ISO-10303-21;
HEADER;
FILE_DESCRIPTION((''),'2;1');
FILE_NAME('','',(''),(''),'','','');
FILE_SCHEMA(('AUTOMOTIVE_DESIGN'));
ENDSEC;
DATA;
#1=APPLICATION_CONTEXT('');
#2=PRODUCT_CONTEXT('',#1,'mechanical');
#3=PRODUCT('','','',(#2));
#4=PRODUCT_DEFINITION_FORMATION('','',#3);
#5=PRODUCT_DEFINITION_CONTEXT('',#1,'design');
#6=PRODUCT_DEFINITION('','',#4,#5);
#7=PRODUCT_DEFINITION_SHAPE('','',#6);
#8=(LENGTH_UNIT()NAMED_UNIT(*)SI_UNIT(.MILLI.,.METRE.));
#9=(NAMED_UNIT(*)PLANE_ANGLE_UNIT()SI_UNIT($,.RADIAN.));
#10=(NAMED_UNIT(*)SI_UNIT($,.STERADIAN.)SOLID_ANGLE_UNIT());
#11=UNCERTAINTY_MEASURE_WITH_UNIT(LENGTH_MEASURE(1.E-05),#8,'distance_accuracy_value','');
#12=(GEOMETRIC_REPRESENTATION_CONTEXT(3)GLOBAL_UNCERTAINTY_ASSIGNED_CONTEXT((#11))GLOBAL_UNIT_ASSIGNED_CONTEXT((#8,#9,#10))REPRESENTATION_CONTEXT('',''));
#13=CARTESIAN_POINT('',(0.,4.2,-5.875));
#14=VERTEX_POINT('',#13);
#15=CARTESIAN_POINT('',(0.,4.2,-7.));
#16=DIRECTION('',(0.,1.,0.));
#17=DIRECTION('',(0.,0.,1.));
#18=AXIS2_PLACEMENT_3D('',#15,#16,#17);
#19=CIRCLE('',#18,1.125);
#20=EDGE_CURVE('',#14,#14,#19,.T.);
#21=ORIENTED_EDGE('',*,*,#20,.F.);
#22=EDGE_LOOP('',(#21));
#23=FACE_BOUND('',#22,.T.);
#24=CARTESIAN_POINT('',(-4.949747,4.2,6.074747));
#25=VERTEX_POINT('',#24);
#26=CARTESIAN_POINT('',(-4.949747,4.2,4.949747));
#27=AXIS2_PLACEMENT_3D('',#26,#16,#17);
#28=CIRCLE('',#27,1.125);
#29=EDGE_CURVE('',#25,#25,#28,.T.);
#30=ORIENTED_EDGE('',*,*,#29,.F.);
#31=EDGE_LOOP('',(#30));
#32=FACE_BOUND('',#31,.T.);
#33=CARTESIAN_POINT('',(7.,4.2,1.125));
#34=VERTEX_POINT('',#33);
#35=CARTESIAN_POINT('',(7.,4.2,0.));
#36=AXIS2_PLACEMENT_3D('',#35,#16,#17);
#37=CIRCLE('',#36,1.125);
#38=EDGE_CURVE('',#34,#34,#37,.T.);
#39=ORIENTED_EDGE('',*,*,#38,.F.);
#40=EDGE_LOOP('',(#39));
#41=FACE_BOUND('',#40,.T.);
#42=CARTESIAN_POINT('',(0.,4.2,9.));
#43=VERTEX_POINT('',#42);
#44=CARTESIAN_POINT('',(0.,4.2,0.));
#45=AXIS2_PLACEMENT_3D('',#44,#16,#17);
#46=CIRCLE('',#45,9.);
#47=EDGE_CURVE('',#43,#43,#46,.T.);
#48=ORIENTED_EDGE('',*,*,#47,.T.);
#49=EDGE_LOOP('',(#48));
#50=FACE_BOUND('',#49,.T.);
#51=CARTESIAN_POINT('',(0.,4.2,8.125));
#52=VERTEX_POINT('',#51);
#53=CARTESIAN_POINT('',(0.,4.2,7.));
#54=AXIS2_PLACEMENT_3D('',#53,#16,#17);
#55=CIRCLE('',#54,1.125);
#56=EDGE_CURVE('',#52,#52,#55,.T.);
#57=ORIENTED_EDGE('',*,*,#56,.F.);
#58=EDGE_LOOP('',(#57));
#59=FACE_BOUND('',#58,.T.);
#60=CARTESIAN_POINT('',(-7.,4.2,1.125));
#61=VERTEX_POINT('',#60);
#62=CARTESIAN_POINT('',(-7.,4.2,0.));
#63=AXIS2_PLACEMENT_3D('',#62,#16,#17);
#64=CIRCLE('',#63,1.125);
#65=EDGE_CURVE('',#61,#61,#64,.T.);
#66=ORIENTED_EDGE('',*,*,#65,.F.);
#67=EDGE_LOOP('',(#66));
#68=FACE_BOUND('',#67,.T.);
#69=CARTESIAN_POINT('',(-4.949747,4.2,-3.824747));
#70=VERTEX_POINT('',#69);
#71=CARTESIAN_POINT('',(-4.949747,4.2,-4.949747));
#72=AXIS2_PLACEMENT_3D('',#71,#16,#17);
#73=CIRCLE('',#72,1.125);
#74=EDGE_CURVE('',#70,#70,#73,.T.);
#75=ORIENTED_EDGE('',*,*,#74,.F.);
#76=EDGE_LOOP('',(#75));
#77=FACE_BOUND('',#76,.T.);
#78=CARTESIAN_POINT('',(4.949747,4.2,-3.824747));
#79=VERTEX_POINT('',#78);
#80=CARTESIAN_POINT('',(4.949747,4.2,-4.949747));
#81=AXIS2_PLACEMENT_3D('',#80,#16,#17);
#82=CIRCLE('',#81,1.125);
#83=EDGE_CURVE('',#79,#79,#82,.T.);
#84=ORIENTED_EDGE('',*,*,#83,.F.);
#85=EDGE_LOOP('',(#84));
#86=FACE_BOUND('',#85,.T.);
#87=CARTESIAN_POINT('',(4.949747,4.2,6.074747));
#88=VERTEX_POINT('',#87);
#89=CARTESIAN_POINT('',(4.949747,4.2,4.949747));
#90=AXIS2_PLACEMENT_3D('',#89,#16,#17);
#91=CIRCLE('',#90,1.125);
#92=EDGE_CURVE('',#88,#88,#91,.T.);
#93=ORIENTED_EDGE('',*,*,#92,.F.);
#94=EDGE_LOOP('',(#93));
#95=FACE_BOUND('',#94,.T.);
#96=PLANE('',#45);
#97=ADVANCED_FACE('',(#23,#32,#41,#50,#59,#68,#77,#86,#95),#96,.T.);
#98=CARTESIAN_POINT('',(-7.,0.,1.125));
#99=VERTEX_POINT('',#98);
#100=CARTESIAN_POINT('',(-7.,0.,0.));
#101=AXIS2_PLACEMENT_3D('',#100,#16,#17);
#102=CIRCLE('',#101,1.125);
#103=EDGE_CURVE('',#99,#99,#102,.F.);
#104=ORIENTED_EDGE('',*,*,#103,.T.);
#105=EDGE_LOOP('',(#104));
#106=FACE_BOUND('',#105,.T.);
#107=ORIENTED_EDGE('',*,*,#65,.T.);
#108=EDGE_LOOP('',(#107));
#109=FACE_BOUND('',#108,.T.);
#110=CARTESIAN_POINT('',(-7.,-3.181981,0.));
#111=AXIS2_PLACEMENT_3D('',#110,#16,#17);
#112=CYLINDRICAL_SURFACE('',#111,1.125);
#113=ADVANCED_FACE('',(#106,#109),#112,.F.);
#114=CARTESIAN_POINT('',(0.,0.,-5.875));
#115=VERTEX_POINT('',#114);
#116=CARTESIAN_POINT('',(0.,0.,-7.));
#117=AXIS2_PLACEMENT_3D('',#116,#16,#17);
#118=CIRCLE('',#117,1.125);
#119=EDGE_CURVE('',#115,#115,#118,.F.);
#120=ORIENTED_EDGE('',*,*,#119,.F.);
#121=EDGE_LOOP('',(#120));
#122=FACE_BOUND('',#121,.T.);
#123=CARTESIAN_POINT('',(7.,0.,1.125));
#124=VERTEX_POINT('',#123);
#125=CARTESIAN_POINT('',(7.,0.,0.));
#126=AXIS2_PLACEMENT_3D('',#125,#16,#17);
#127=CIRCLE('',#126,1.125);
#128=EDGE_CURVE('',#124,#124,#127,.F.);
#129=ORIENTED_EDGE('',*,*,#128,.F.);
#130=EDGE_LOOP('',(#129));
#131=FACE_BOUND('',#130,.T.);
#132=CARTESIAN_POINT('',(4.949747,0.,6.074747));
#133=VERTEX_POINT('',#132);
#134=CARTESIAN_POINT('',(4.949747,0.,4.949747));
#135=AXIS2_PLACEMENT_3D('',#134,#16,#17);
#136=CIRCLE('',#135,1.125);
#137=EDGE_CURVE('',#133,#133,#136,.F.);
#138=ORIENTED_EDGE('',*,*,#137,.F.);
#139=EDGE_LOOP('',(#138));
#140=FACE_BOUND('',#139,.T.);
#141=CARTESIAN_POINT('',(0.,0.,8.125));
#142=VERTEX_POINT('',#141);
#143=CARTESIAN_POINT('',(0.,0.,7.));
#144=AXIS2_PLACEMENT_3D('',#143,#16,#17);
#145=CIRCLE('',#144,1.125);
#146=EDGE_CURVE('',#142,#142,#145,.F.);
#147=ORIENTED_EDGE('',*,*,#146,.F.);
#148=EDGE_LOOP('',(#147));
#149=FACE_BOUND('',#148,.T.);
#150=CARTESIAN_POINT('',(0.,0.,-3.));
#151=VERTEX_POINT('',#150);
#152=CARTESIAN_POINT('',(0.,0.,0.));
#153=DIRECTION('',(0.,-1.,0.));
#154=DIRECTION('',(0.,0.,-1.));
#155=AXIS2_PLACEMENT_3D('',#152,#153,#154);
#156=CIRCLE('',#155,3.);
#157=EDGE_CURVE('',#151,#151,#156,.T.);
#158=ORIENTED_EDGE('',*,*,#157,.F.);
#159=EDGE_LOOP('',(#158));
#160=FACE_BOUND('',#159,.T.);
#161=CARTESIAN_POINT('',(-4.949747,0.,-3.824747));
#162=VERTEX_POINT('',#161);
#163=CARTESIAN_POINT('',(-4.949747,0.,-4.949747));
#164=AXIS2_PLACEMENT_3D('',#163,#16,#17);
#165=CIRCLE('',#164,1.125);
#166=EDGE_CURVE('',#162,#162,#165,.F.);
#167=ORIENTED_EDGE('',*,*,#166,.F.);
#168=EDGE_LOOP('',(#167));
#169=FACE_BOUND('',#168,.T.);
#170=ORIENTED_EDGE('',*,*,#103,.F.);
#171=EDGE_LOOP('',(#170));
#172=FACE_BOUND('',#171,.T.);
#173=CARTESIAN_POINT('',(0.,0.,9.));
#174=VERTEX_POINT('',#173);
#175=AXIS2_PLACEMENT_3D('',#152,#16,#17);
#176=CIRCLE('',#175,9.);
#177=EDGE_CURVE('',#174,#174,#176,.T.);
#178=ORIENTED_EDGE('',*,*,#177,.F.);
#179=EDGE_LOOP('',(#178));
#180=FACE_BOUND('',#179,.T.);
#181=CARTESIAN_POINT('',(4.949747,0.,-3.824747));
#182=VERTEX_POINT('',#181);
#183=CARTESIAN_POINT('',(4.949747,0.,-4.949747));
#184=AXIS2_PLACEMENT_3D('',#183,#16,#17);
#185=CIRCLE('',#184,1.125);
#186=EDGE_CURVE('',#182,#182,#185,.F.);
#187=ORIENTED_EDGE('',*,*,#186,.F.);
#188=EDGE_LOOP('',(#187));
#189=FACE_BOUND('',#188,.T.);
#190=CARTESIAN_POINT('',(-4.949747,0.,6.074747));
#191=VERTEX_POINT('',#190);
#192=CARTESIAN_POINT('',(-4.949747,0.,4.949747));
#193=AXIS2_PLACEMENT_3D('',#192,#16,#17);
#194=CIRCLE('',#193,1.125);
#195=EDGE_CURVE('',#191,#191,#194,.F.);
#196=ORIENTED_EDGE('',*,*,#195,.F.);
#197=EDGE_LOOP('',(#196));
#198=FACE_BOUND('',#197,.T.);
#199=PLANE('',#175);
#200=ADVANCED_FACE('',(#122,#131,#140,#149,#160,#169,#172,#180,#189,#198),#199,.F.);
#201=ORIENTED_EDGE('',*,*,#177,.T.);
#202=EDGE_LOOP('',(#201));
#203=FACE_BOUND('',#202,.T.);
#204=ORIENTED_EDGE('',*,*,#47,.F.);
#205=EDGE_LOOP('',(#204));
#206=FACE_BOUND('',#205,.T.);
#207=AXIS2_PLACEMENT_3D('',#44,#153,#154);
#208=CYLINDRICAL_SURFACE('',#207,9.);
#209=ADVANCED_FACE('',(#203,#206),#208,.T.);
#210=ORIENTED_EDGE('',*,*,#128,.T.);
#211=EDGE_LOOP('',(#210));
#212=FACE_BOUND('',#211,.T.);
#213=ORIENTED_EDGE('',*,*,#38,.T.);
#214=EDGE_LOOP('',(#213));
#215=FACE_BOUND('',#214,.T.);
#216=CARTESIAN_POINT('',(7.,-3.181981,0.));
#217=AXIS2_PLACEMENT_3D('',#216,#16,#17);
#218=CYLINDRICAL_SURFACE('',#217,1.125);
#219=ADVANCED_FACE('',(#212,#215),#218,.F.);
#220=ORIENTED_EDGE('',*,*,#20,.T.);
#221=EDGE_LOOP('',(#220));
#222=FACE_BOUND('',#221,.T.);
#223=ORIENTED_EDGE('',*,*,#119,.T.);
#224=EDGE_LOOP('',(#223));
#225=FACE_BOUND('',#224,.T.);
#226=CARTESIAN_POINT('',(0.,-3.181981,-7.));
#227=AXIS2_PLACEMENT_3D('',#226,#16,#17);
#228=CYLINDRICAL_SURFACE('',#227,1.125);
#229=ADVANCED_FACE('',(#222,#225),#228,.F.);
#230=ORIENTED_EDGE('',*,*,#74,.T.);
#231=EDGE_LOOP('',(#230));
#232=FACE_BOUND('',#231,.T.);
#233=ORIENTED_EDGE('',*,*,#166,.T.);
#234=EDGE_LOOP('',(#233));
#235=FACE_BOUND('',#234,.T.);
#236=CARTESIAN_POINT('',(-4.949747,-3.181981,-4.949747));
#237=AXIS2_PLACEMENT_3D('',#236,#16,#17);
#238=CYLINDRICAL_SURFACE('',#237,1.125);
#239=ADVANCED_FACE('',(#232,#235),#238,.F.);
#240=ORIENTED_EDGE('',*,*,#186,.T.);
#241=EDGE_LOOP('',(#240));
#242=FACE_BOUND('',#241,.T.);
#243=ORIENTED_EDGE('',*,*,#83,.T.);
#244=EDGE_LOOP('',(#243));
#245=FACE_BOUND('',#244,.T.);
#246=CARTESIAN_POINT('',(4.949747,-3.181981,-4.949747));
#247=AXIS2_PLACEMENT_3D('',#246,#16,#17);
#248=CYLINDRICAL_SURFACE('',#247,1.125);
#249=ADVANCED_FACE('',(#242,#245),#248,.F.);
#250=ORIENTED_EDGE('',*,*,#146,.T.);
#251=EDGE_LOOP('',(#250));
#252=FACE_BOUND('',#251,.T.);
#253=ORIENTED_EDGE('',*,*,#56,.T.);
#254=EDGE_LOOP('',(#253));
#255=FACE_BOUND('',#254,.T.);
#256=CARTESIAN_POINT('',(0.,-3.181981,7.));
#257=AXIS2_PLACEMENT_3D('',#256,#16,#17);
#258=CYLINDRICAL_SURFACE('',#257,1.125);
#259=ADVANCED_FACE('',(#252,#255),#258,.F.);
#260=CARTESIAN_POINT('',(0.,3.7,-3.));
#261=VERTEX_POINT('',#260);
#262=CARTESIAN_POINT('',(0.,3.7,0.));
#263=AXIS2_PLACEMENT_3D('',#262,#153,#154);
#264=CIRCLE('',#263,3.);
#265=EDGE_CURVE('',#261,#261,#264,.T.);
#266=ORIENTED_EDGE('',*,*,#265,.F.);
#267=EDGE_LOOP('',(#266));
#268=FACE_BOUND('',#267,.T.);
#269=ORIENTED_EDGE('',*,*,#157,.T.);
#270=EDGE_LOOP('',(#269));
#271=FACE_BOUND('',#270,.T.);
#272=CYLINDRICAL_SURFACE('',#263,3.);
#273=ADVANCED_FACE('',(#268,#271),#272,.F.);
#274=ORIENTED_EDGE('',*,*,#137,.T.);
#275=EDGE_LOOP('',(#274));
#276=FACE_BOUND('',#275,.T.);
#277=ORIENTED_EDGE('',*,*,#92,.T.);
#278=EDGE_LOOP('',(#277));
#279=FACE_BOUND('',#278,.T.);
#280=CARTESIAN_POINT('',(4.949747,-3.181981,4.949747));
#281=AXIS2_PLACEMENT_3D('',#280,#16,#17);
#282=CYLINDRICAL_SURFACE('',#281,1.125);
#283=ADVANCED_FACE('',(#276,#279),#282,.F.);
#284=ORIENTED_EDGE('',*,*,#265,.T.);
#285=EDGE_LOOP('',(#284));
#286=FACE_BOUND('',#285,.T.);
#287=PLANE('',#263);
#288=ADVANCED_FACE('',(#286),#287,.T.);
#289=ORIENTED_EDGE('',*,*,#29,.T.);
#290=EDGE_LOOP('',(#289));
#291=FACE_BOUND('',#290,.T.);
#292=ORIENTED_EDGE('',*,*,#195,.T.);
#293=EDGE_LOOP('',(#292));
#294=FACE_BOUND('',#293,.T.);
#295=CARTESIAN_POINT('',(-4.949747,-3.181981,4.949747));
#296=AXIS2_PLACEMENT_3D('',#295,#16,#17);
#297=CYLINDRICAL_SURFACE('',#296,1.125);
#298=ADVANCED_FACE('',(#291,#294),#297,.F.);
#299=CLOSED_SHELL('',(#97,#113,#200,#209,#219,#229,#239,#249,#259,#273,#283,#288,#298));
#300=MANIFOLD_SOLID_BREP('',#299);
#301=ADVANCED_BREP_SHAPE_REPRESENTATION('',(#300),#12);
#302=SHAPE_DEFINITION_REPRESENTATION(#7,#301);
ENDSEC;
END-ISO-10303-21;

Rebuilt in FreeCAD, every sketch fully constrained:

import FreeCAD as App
import Part
import Sketcher

V = App.Vector

doc = App.newDocument("Part")
body = doc.addObject("PartDesign::Body", "Body")

sketch1 = doc.addObject("Sketcher::SketchObject", "Sketch")
body.addObject(sketch1)
sketch1.AttachmentSupport = (doc.XZ_Plane, [""])
sketch1.MapMode = "FlatFace"
sketch1.addGeometry(Part.Circle(V(0, 0, 0), V(0, 0, 1), 9), False)
sketch1.addConstraint([
    Sketcher.Constraint("Coincident", 0, 3, -1, 1),
    Sketcher.Constraint("Diameter", 0, 18.0),
])
pad1 = doc.addObject("PartDesign::Pad", "Pad")
body.addObject(pad1)
pad1.Profile = sketch1
pad1.Length = 4.2
pad1.Reversed = True

sketch2 = doc.addObject("Sketcher::SketchObject", "Sketch001")
body.addObject(sketch2)
sketch2.AttachmentSupport = (doc.XZ_Plane, [""])
sketch2.MapMode = "FlatFace"
sketch2.AttachmentOffset = App.Placement(V(0, 0, -4.2), App.Rotation())
sketch2.addGeometry([
    Part.Circle(V(0, -7, 0), V(0, 0, 1), 1.1),
    Part.Circle(V(4.9, -4.9, 0), V(0, 0, 1), 1.1),
    Part.Circle(V(7, 0, 0), V(0, 0, 1), 1.1),
    Part.Circle(V(4.9, 4.9, 0), V(0, 0, 1), 1.1),
    Part.Circle(V(0, 7, 0), V(0, 0, 1), 1.1),
    Part.Circle(V(-4.9, 4.9, 0), V(0, 0, 1), 1.1),
    Part.Circle(V(-7, 0, 0), V(0, 0, 1), 1.1),
    Part.Circle(V(-4.9, -4.9, 0), V(0, 0, 1), 1.1),
], False)
sketch2.addConstraint([
    Sketcher.Constraint("Equal", 0, 1),
    Sketcher.Constraint("Equal", 1, 2),
    Sketcher.Constraint("Equal", 2, 3),
    Sketcher.Constraint("Equal", 3, 4),
    Sketcher.Constraint("Equal", 4, 5),
    Sketcher.Constraint("Equal", 5, 6),
    Sketcher.Constraint("Equal", 6, 7),
    Sketcher.Constraint("Symmetric", 0, 3, 4, 3, -1, 1),
    Sketcher.Constraint("Symmetric", 1, 3, 5, 3, -1, 1),
    Sketcher.Constraint("Symmetric", 2, 3, 6, 3, -1, 1),
    Sketcher.Constraint("Symmetric", 3, 3, 7, 3, -1, 1),
    Sketcher.Constraint("Symmetric", 3, 3, 5, 3, -2),
    Sketcher.Constraint("PointOnObject", 0, 3, -2),
    Sketcher.Constraint("PointOnObject", 2, 3, -1),
    Sketcher.Constraint("Diameter", 0, 2.25),
    Sketcher.Constraint("DistanceY", 0, 3, -1, 1, 7.0),
    Sketcher.Constraint("DistanceX", -1, 1, 2, 3, 7.0),
    Sketcher.Constraint("DistanceX", -1, 1, 1, 3, 4.949747),
    Sketcher.Constraint("DistanceY", 1, 3, -1, 1, 4.949747),
])
pocket1 = doc.addObject("PartDesign::Pocket", "Pocket")
body.addObject(pocket1)
pocket1.Profile = sketch2
pocket1.Length = 4.2
pocket1.Reversed = True

sketch3 = doc.addObject("Sketcher::SketchObject", "Sketch002")
body.addObject(sketch3)
sketch3.AttachmentSupport = (doc.XZ_Plane, [""])
sketch3.MapMode = "FlatFace"
sketch3.addGeometry(Part.Circle(V(0, 0, 0), V(0, 0, 1), 3), False)
sketch3.addConstraint([
    Sketcher.Constraint("Coincident", 0, 3, -1, 1),
    Sketcher.Constraint("Diameter", 0, 6.0),
])
pocket2 = doc.addObject("PartDesign::Pocket", "Pocket001")
body.addObject(pocket2)
pocket2.Profile = sketch3
pocket2.Length = 3.7

doc.recompute()
